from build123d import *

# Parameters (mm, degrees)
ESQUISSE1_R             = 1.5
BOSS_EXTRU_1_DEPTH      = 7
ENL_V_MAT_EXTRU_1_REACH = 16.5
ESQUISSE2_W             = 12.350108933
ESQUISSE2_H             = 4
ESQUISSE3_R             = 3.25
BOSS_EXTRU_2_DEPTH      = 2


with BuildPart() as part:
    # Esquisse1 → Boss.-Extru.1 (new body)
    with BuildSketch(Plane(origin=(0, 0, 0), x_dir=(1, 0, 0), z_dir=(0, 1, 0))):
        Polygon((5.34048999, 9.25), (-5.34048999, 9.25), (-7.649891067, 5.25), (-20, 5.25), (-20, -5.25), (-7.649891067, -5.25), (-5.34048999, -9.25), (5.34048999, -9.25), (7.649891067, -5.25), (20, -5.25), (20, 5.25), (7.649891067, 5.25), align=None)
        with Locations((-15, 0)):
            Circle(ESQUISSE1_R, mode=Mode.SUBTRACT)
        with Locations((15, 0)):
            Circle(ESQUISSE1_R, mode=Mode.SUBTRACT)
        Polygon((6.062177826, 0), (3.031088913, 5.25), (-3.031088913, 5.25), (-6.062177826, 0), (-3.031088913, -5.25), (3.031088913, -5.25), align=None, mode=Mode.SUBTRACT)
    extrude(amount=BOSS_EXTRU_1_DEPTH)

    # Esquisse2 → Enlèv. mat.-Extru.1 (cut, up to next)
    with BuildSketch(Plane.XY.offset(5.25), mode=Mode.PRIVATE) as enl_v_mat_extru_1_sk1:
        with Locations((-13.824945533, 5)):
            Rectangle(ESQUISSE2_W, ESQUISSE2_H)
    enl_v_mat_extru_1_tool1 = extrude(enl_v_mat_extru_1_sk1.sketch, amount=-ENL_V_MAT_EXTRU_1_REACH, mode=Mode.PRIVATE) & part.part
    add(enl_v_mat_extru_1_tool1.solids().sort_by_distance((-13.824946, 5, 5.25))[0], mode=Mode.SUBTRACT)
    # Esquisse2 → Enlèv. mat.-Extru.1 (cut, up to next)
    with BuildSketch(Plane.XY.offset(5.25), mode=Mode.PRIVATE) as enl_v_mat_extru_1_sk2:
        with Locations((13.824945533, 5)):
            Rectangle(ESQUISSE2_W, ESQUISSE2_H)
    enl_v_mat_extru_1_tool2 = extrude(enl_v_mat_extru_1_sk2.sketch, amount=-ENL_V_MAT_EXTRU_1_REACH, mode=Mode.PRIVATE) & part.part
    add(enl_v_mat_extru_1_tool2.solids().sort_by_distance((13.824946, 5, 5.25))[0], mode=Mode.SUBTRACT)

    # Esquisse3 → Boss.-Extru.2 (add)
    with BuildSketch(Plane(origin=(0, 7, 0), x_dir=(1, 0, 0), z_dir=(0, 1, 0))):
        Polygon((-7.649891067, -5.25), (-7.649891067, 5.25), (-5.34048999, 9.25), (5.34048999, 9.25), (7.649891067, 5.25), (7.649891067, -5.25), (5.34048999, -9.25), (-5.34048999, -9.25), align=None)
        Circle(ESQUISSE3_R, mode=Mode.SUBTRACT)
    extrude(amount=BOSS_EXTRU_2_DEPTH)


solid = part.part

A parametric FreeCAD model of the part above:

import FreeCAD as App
import Part
import Sketcher
from FreeCAD import Vector
Q = App.Units.Quantity


def add_polygon(sketch, points):
    """Adds a closed chain of lines whose ends are joined by coincident constraints."""
    first, n = sketch.GeometryCount, len(points)
    for a, b in zip(points, points[1:] + points[:1]):
        sketch.addGeometry(Part.LineSegment(App.Vector(*a, 0), App.Vector(*b, 0)), False)
    for i in range(n):
        sketch.addConstraint(Sketcher.Constraint("Coincident", first + i, 2, first + (i + 1) % n, 1))

doc = App.newDocument("Part")
params = doc.addObject("Spreadsheet::Sheet", "Params")
for row, (alias, value) in enumerate([
    ("sketch1_diameter", "3 mm"),
    ("sketch1_height", "10.5 mm"),
    ("pad1_length", "7 mm"),
    ("sketch2_height", "4 mm"),
    ("sketch3_height", "4 mm"),
    ("sketch4_diameter", "6.5 mm"),
    ("sketch4_height", "10.5 mm"),
    ("pad2_length", "2 mm"),
], start=1):
    params.set(f"A{row}", alias)
    params.set(f"B{row}", "=" + value)
    params.setAlias(f"B{row}", alias)

body = doc.addObject("PartDesign::Body", "Body")

# Sketch on XZ plane
sketch1 = doc.addObject("Sketcher::SketchObject", "Sketch")
body.addObject(sketch1)
sketch1.AttachmentSupport = (doc.XZ_Plane, [""])
sketch1.MapMode = "FlatFace"
add_polygon(sketch1, [(5.34049, -9.25), (-5.34049, -9.25), (-7.649891, -5.25), (-20, -5.25), (-20, 5.25), (-7.649891, 5.25), (-5.34049, 9.25), (5.34049, 9.25), (7.649891, 5.25), (20, 5.25), (20, -5.25), (7.649891, -5.25)])  # lines 0-11
sketch1.addGeometry(Part.Circle(Vector(-15, 0, 0), Vector(0, 0, 1), 1.5), False)  # 12
add_polygon(sketch1, [(3.031089, -5.25), (6.062178, 0), (3.031089, 5.25), (-3.031089, 5.25), (-6.062178, 0), (-3.031089, -5.25)])  # lines 13-18
sketch1.addGeometry(Part.Circle(Vector(15, 0, 0), Vector(0, 0, 1), 1.5), False)  # 19
sketch1.addConstraint([
    Sketcher.Constraint("Horizontal", 0),
    Sketcher.Constraint("Horizontal", 2),
    Sketcher.Constraint("Vertical", 3),
    Sketcher.Constraint("Horizontal", 4),
    Sketcher.Constraint("Horizontal", 6),
    Sketcher.Constraint("Horizontal", 8),
    Sketcher.Constraint("Vertical", 9),
    Sketcher.Constraint("Horizontal", 10),
    Sketcher.Constraint("Horizontal", 15),
    Sketcher.Constraint("Horizontal", 18),
    Sketcher.Constraint("Equal", 12, 19),
    Sketcher.Constraint("Symmetric", 12, 3, 19, 3, -1, 1),
    Sketcher.Constraint("Symmetric", 0, 2, 6, 2, -1, 1),
    Sketcher.Constraint("Symmetric", 1, 2, 7, 2, -1, 1),
    Sketcher.Constraint("Symmetric", 3, 2, 9, 2, -1, 1),
    Sketcher.Constraint("Symmetric", 13, 2, 16, 2, -1, 1),
    Sketcher.Constraint("Symmetric", 14, 2, 17, 2, -1, 1),
    Sketcher.Constraint("Symmetric", 4, 2, 7, 2, -2),
    Sketcher.Constraint("PointOnObject", 12, 3, -1),
    Sketcher.Constraint("PointOnObject", 13, 2, -1),
    Sketcher.Constraint("Parallel", 5, 11),
    Sketcher.Constraint("Parallel", 11, 13),
    Sketcher.Constraint("Parallel", 7, 14),
    Sketcher.Constraint("Parallel", 13, 16),
    Sketcher.Constraint("Horizontal", 8, 2, 14, 2),
    Sketcher.Constraint("Vertical", 0, 2, 5, 2),
    Sketcher.Constraint("Vertical", 7, 2, 10, 2),
    Sketcher.Constraint("Diameter", 12, 3.0),
    Sketcher.Constraint("Angle", 1, Q("120 deg")),
    Sketcher.Constraint("DistanceY", 3, 1, 3, 2, 10.5),
    Sketcher.Constraint("DistanceX", 12, 3, -1, 1, 15.0),
    Sketcher.Constraint("DistanceX", 2, 2, -1, 1, 20.0),
    Sketcher.Constraint("DistanceY", 0, 2, 1, 2, 4.0),
    Sketcher.Constraint("DistanceX", 0, 2, 0, 1, 10.68098),
    Sketcher.Constraint("DistanceX", 14, 2, 6, 2, 2.309401),
])
sketch1.setExpression("Constraints[45]", "Params.sketch1_diameter")
sketch1.setExpression("Constraints[47]", "Params.sketch1_height")
pad1 = doc.addObject("PartDesign::Pad", "Pad")
body.addObject(pad1)
pad1.Profile = sketch1
pad1.setExpression("Length", "Params.pad1_length")
pad1.Reversed = True

# Sketch on XY plane
sketch2 = doc.addObject("Sketcher::SketchObject", "Sketch001")
body.addObject(sketch2)
sketch2.AttachmentSupport = (doc.XY_Plane, [""])
sketch2.MapMode = "FlatFace"
sketch2.AttachmentOffset = App.Placement(Vector(0, 0, 5.25), App.Rotation())
add_polygon(sketch2, [(-20, 7), (-20, 3), (-7.649891, 3), (-7.649891, 7)])  # lines 0-3
sketch2.addConstraint([
    Sketcher.Constraint("Vertical", 0),
    Sketcher.Constraint("Horizontal", 1),
    Sketcher.Constraint("Vertical", 2),
    Sketcher.Constraint("Horizontal", 3),
    Sketcher.Constraint("DistanceY", 0, 2, 0, 1, 4.0),
    Sketcher.Constraint("DistanceX", 0, 2, -1, 1, 20.0),
    Sketcher.Constraint("DistanceY", -1, 1, 0, 2, 3.0),
    Sketcher.Constraint("DistanceX", 1, 1, 1, 2, 12.350109),
])
sketch2.setExpression("Constraints[8]", "Params.sketch2_height")
pocket1 = doc.addObject("PartDesign::Pocket", "Pocket")
body.addObject(pocket1)
pocket1.Profile = sketch2
pocket1.Type = "UpToFirst"

# Sketch on XY plane
sketch3 = doc.addObject("Sketcher::SketchObject", "Sketch002")
body.addObject(sketch3)
sketch3.AttachmentSupport = (doc.XY_Plane, [""])
sketch3.MapMode = "FlatFace"
sketch3.AttachmentOffset = App.Placement(Vector(0, 0, 5.25), App.Rotation())
add_polygon(sketch3, [(7.649891, 7), (7.649891, 3), (20, 3), (20, 7)])  # lines 0-3
sketch3.addConstraint([
    Sketcher.Constraint("Vertical", 0),
    Sketcher.Constraint("Horizontal", 1),
    Sketcher.Constraint("Vertical", 2),
    Sketcher.Constraint("Horizontal", 3),
    Sketcher.Constraint("DistanceY", 0, 2, 0, 1, 4.0),
    Sketcher.Constraint("DistanceY", -1, 1, 0, 2, 3.0),
    Sketcher.Constraint("DistanceX", -1, 1, 1, 2, 20.0),
    Sketcher.Constraint("DistanceX", 1, 1, 1, 2, 12.350109),
])
sketch3.setExpression("Constraints[8]", "Params.sketch3_height")
pocket2 = doc.addObject("PartDesign::Pocket", "Pocket001")
body.addObject(pocket2)
pocket2.Profile = sketch3
pocket2.Type = "UpToFirst"

# Sketch on XZ plane
sketch4 = doc.addObject("Sketcher::SketchObject", "Sketch003")
body.addObject(sketch4)
sketch4.AttachmentSupport = (doc.XZ_Plane, [""])
sketch4.MapMode = "FlatFace"
sketch4.AttachmentOffset = App.Placement(Vector(0, 0, -7), App.Rotation())
add_polygon(sketch4, [(-7.649891, -5.25), (-7.649891, 5.25), (-5.34049, 9.25), (5.34049, 9.25), (7.649891, 5.25), (7.649891, -5.25), (5.34049, -9.25), (-5.34049, -9.25)])  # lines 0-7
sketch4.addGeometry(Part.Circle(Vector(0, 0, 0), Vector(0, 0, 1), 3.25), False)  # 8
sketch4.addConstraint([
    Sketcher.Constraint("Vertical", 0),
    Sketcher.Constraint("Horizontal", 2),
    Sketcher.Constraint("Vertical", 4),
    Sketcher.Constraint("Horizontal", 6),
    Sketcher.Constraint("Coincident", 8, 3, -1, 1),
    Sketcher.Constraint("Symmetric", 0, 2, 4, 2, -1, 1),
    Sketcher.Constraint("Symmetric", 1, 2, 5, 2, -1, 1),
    Sketcher.Constraint("Parallel", 3, 7),
    Sketcher.Constraint("Horizontal", 0, 2, 3, 2),
    Sketcher.Constraint("Horizontal", 4, 2, 7, 2),
    Sketcher.Constraint("Vertical", 2, 2, 5, 2),
    Sketcher.Constraint("Diameter", 8, 6.5),
    Sketcher.Constraint("Angle", 1, Q("60 deg")),
    Sketcher.Constraint("DistanceY", 0, 1, 0, 2, 10.5),
    Sketcher.Constraint("DistanceY", 0, 2, 1, 2, 4.0),
    Sketcher.Constraint("DistanceX", 2, 1, 2, 2, 10.68098),
])
sketch4.setExpression("Constraints[19]", "Params.sketch4_diameter")
sketch4.setExpression("Constraints[21]", "Params.sketch4_height")
pad2 = doc.addObject("PartDesign::Pad", "Pad001")
body.addObject(pad2)
pad2.Profile = sketch4
pad2.setExpression("Length", "Params.pad2_length")
pad2.Reversed = True

doc.recompute()
